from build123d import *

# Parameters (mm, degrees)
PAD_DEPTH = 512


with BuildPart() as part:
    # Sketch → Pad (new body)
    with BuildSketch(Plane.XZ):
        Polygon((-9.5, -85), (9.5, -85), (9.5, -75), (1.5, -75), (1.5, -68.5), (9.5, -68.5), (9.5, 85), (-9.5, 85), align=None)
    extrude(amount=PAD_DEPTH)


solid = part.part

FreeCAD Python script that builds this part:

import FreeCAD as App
import Part
import Sketcher

doc = App.newDocument("Part")
body = doc.addObject("PartDesign::Body", "Body")

# Sketch on XZ plane
sketch1 = body.newObject("Sketcher::SketchObject", "Sketch")
sketch1.AttachmentSupport = (doc.getObject("XZ_Plane"), [""])
sketch1.MapMode = "FlatFace"
sketch1.addGeometry([
    Part.LineSegment(App.Vector(-9.5, -85, 0), App.Vector(9.5, -85, 0)),  # 0
    Part.LineSegment(App.Vector(9.5, -85, 0), App.Vector(9.5, -75, 0)),  # 1
    Part.LineSegment(App.Vector(9.5, -75, 0), App.Vector(1.5, -75, 0)),  # 2
    Part.LineSegment(App.Vector(1.5, -75, 0), App.Vector(1.5, -68.5, 0)),  # 3
    Part.LineSegment(App.Vector(1.5, -68.5, 0), App.Vector(9.5, -68.5, 0)),  # 4
    Part.LineSegment(App.Vector(9.5, -68.5, 0), App.Vector(9.5, 85, 0)),  # 5
    Part.LineSegment(App.Vector(9.5, 85, 0), App.Vector(-9.5, 85, 0)),  # 6
    Part.LineSegment(App.Vector(-9.5, 85, 0), App.Vector(-9.5, -85, 0)),  # 7
], False)
sketch1.addConstraint([
    Sketcher.Constraint("Coincident", 0, 2, 1, 1),
    Sketcher.Constraint("Coincident", 1, 2, 2, 1),
    Sketcher.Constraint("Coincident", 2, 2, 3, 1),
    Sketcher.Constraint("Coincident", 3, 2, 4, 1),
    Sketcher.Constraint("Coincident", 4, 2, 5, 1),
    Sketcher.Constraint("Coincident", 5, 2, 6, 1),
    Sketcher.Constraint("Coincident", 6, 2, 7, 1),
    Sketcher.Constraint("Coincident", 7, 2, 0, 1),
    Sketcher.Constraint("Horizontal", 0),
    Sketcher.Constraint("Vertical", 1),
    Sketcher.Constraint("Horizontal", 2),
    Sketcher.Constraint("Vertical", 3),
    Sketcher.Constraint("Horizontal", 4),
    Sketcher.Constraint("Vertical", 5),
    Sketcher.Constraint("Horizontal", 6),
    Sketcher.Constraint("Vertical", 7),
    Sketcher.Constraint("Symmetric", 0, 2, 6, 2, -1, 1),
    Sketcher.Constraint("Vertical", 1, 2, 4, 2),
    Sketcher.Constraint("DistanceX", 0, 1, 0, 2, 19.0),
    Sketcher.Constraint("DistanceX", 2, 2, 2, 1, 8.0),
    Sketcher.Constraint("DistanceY", 1, 1, 1, 2, 10.0),
    Sketcher.Constraint("DistanceY", 7, 2, 7, 1, 170.0),
    Sketcher.Constraint("DistanceY", 3, 1, 3, 2, 6.5),
])
pad1 = body.newObject("PartDesign::Pad", "Pad")
pad1.Profile = sketch1
pad1.Length = 512

doc.recompute()
